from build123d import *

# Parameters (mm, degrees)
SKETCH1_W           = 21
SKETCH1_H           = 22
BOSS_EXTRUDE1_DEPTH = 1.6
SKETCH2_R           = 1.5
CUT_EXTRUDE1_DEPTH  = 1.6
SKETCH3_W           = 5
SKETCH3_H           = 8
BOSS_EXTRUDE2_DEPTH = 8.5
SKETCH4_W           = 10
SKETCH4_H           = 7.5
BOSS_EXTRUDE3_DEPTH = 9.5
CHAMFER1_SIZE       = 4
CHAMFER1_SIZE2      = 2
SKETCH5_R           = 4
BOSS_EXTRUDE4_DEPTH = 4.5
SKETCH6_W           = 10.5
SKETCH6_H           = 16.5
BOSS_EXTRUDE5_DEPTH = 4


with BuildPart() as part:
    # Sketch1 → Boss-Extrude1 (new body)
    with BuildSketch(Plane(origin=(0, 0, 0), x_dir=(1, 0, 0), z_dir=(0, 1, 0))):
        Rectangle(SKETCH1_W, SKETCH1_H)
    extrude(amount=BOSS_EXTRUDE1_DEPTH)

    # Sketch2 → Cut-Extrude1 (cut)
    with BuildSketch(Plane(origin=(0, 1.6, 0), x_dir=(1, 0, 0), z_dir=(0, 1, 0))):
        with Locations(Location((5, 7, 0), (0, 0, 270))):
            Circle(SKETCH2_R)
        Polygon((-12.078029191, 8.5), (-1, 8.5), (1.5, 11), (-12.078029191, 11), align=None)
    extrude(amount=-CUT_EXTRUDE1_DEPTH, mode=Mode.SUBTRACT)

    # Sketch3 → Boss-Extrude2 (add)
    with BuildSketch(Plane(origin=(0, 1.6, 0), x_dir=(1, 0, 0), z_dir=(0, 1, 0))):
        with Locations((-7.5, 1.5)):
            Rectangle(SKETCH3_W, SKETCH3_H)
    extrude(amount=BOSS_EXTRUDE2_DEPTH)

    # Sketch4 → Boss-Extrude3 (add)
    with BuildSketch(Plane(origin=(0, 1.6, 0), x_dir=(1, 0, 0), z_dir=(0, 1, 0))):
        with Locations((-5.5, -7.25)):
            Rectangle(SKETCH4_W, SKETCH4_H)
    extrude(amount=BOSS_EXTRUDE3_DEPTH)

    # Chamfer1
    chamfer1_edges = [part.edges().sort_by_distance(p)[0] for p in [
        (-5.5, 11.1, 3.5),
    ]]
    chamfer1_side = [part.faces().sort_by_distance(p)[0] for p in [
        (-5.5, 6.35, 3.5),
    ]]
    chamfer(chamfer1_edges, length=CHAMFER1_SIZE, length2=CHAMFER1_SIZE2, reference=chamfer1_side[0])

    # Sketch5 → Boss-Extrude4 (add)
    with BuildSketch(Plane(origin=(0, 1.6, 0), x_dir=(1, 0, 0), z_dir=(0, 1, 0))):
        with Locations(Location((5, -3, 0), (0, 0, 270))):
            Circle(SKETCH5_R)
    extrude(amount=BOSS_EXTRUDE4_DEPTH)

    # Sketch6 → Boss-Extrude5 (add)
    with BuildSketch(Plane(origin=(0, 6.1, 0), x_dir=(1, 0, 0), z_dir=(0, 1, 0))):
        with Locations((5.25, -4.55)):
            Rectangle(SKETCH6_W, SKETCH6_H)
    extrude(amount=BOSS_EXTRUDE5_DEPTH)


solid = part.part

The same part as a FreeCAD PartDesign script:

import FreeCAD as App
import Part
import Sketcher
Q = App.Units.Quantity


def edges_at(feature, points):
    """Names of the edges that pass closest to the given points."""
    edges = feature.Shape.Edges
    near = lambda p: min(range(len(edges)), key=lambda i: edges[i].distToShape(Part.Vertex(*p))[0])
    return sorted({f"Edge{near(p) + 1}" for p in points})

doc = App.newDocument("Part")
body = doc.addObject("PartDesign::Body", "Body")

sketch1 = body.newObject("Sketcher::SketchObject", "Sketch")
sketch1.AttachmentSupport = (doc.getObject("XZ_Plane"), [""])
sketch1.MapMode = "FlatFace"
sketch1.addGeometry([
    Part.LineSegment(App.Vector(-10, -11, 0), App.Vector(-10, 11, 0)),
    Part.LineSegment(App.Vector(-10, 11, 0), App.Vector(10, 11, 0)),
    Part.LineSegment(App.Vector(10, 11, 0), App.Vector(10, -11, 0)),
    Part.LineSegment(App.Vector(10, -11, 0), App.Vector(-10, -11, 0)),
], False)
sketch1.addConstraint([
    Sketcher.Constraint("Coincident", 0, 2, 1, 1),
    Sketcher.Constraint("Coincident", 1, 2, 2, 1),
    Sketcher.Constraint("Coincident", 2, 2, 3, 1),
    Sketcher.Constraint("Coincident", 3, 2, 0, 1),
    Sketcher.Constraint("Vertical", 0),
    Sketcher.Constraint("Horizontal", 1),
    Sketcher.Constraint("Vertical", 2),
    Sketcher.Constraint("Horizontal", 3),
    Sketcher.Constraint("Symmetric", 0, 2, 2, 2, -1, 1),
    Sketcher.Constraint("DistanceX", 1, 1, 1, 2, 21.0),
    Sketcher.Constraint("DistanceY", 0, 1, 0, 2, 22.0),
])
pad1 = body.newObject("PartDesign::Pad", "Pad")
pad1.Profile = sketch1
pad1.Length = 1.6
pad1.Reversed = True

sketch2 = body.newObject("Sketcher::SketchObject", "Sketch001")
sketch2.AttachmentSupport = (doc.getObject("XZ_Plane"), [""])
sketch2.MapMode = "FlatFace"
sketch2.AttachmentOffset = App.Placement(App.Vector(0, 0, -1.6), App.Rotation())
sketch2.addGeometry([
    Part.Circle(App.Vector(5, -7, 0), App.Vector(0, 0, 1), 1.5),
    Part.LineSegment(App.Vector(-12.1, -8.5, 0), App.Vector(-1, -8.5, 0)),
    Part.LineSegment(App.Vector(-1, -8.5, 0), App.Vector(1.5, -11, 0)),
    Part.LineSegment(App.Vector(1.5, -11, 0), App.Vector(-12.1, -11, 0)),
    Part.LineSegment(App.Vector(-12.1, -11, 0), App.Vector(-12.1, -8.5, 0)),
], False)
sketch2.addConstraint([
    Sketcher.Constraint("Coincident", 1, 2, 2, 1),
    Sketcher.Constraint("Coincident", 2, 2, 3, 1),
    Sketcher.Constraint("Coincident", 3, 2, 4, 1),
    Sketcher.Constraint("Coincident", 4, 2, 1, 1),
    Sketcher.Constraint("Horizontal", 1),
    Sketcher.Constraint("Horizontal", 3),
    Sketcher.Constraint("Vertical", 4),
    Sketcher.Constraint("Diameter", 0, 3.0),
    Sketcher.Constraint("Angle", 2, Q("-45 deg")),
    Sketcher.Constraint("DistanceY", 4, 1, 4, 2, 2.5),
    Sketcher.Constraint("DistanceX", -1, 1, 0, 3, 5.0),
    Sketcher.Constraint("DistanceY", 0, 3, -1, 1, 7.0),
    Sketcher.Constraint("DistanceX", 1, 2, -1, 1, 1.0),
    Sketcher.Constraint("DistanceY", 2, 2, -1, 1, 11.0),
    Sketcher.Constraint("DistanceX", 1, 1, 1, 2, 11.078029),
])
pocket1 = body.newObject("PartDesign::Pocket", "Pocket")
pocket1.Profile = sketch2
pocket1.Length = 1.6
pocket1.Reversed = True

sketch3 = body.newObject("Sketcher::SketchObject", "Sketch002")
sketch3.AttachmentSupport = (doc.getObject("XZ_Plane"), [""])
sketch3.MapMode = "FlatFace"
sketch3.AttachmentOffset = App.Placement(App.Vector(0, 0, -1.6), App.Rotation())
sketch3.addGeometry([
    Part.LineSegment(App.Vector(-10, -6, 0), App.Vector(-10, 2, 0)),
    Part.LineSegment(App.Vector(-10, 2, 0), App.Vector(-5, 2, 0)),
    Part.LineSegment(App.Vector(-5, 2, 0), App.Vector(-5, -6, 0)),
    Part.LineSegment(App.Vector(-5, -6, 0), App.Vector(-10, -6, 0)),
], False)
sketch3.addConstraint([
    Sketcher.Constraint("Coincident", 0, 2, 1, 1),
    Sketcher.Constraint("Coincident", 1, 2, 2, 1),
    Sketcher.Constraint("Coincident", 2, 2, 3, 1),
    Sketcher.Constraint("Coincident", 3, 2, 0, 1),
    Sketcher.Constraint("Vertical", 0),
    Sketcher.Constraint("Horizontal", 1),
    Sketcher.Constraint("Vertical", 2),
    Sketcher.Constraint("Horizontal", 3),
    Sketcher.Constraint("DistanceX", 1, 1, 1, 2, 5.0),
    Sketcher.Constraint("DistanceY", 0, 1, 0, 2, 8.0),
    Sketcher.Constraint("DistanceX", 0, 2, -1, 1, 10.0),
    Sketcher.Constraint("DistanceY", -1, 1, 0, 2, 2.5),
])
pad2 = body.newObject("PartDesign::Pad", "Pad001")
pad2.Profile = sketch3
pad2.Length = 8.5
pad2.Reversed = True

sketch4 = body.newObject("Sketcher::SketchObject", "Sketch003")
sketch4.AttachmentSupport = (doc.getObject("XZ_Plane"), [""])
sketch4.MapMode = "FlatFace"
sketch4.AttachmentOffset = App.Placement(App.Vector(0, 0, -1.6), App.Rotation())
sketch4.addGeometry([
    Part.LineSegment(App.Vector(-10, 4, 0), App.Vector(-10, 11, 0)),
    Part.LineSegment(App.Vector(-10, 11, 0), App.Vector(0, 11, 0)),
    Part.LineSegment(App.Vector(0, 11, 0), App.Vector(0, 4, 0)),
    Part.LineSegment(App.Vector(0, 4, 0), App.Vector(-10, 4, 0)),
], False)
sketch4.addConstraint([
    Sketcher.Constraint("Coincident", 0, 2, 1, 1),
    Sketcher.Constraint("Coincident", 1, 2, 2, 1),
    Sketcher.Constraint("Coincident", 2, 2, 3, 1),
    Sketcher.Constraint("Coincident", 3, 2, 0, 1),
    Sketcher.Constraint("Vertical", 0),
    Sketcher.Constraint("Horizontal", 1),
    Sketcher.Constraint("Vertical", 2),
    Sketcher.Constraint("Horizontal", 3),
    Sketcher.Constraint("DistanceX", 1, 1, 1, 2, 10.0),
    Sketcher.Constraint("DistanceY", 0, 1, 0, 2, 7.5),
    Sketcher.Constraint("DistanceY", -1, 1, 0, 2, 11.0),
    Sketcher.Constraint("DistanceX", 0, 2, -1, 1, 10.5),
])
pad3 = body.newObject("PartDesign::Pad", "Pad002")
pad3.Profile = sketch4
pad3.Length = 9.5
pad3.Reversed = True
doc.recompute()

chamfer = body.newObject("PartDesign::Chamfer", "Chamfer")
chamfer.Base = (pad3, edges_at(pad3, [(-5.5, 11.1, 3.5)]))
chamfer.ChamferType = "Two distances"
chamfer.Size = 4
chamfer.Size2 = 2

sketch5 = body.newObject("Sketcher::SketchObject", "Sketch004")
sketch5.AttachmentSupport = (doc.getObject("XZ_Plane"), [""])
sketch5.MapMode = "FlatFace"
sketch5.AttachmentOffset = App.Placement(App.Vector(0, 0, -1.6), App.Rotation())
sketch5.addGeometry(Part.Circle(App.Vector(5, 3, 0), App.Vector(0, 0, 1), 4), False)
sketch5.addConstraint([
    Sketcher.Constraint("Diameter", 0, 8.0),
    Sketcher.Constraint("DistanceX", -1, 1, 0, 3, 5.0),
    Sketcher.Constraint("DistanceY", -1, 1, 0, 3, 3.0),
])
pad4 = body.newObject("PartDesign::Pad", "Pad003")
pad4.Profile = sketch5
pad4.Length = 4.5
pad4.Reversed = True

sketch6 = body.newObject("Sketcher::SketchObject", "Sketch005")
sketch6.AttachmentSupport = (doc.getObject("XZ_Plane"), [""])
sketch6.MapMode = "FlatFace"
sketch6.AttachmentOffset = App.Placement(App.Vector(0, 0, -6.1), App.Rotation())
sketch6.addGeometry([
    Part.LineSegment(App.Vector(0, -4, 0), App.Vector(0, 13, 0)),
    Part.LineSegment(App.Vector(0, 13, 0), App.Vector(10, 13, 0)),
    Part.LineSegment(App.Vector(10, 13, 0), App.Vector(10, -4, 0)),
    Part.LineSegment(App.Vector(10, -4, 0), App.Vector(0, -4, 0)),
], False)
sketch6.addConstraint([
    Sketcher.Constraint("Coincident", 0, 2, 1, 1),
    Sketcher.Constraint("Coincident", 1, 2, 2, 1),
    Sketcher.Constraint("Coincident", 2, 2, 3, 1),
    Sketcher.Constraint("Coincident", 3, 2, 0, 1),
    Sketcher.Constraint("Vertical", 0),
    Sketcher.Constraint("Horizontal", 1),
    Sketcher.Constraint("Vertical", 2),
    Sketcher.Constraint("Horizontal", 3),
    Sketcher.Constraint("PointOnObject", 0, 2, -2),
    Sketcher.Constraint("DistanceX", 1, 1, 1, 2, 10.5),
    Sketcher.Constraint("DistanceY", 0, 1, 0, 2, 16.5),
    Sketcher.Constraint("DistanceY", -1, 1, 0, 2, 12.8),
])
pad5 = body.newObject("PartDesign::Pad", "Pad004")
pad5.Profile = sketch6
pad5.Length = 4
pad5.Reversed = True

doc.recompute()
